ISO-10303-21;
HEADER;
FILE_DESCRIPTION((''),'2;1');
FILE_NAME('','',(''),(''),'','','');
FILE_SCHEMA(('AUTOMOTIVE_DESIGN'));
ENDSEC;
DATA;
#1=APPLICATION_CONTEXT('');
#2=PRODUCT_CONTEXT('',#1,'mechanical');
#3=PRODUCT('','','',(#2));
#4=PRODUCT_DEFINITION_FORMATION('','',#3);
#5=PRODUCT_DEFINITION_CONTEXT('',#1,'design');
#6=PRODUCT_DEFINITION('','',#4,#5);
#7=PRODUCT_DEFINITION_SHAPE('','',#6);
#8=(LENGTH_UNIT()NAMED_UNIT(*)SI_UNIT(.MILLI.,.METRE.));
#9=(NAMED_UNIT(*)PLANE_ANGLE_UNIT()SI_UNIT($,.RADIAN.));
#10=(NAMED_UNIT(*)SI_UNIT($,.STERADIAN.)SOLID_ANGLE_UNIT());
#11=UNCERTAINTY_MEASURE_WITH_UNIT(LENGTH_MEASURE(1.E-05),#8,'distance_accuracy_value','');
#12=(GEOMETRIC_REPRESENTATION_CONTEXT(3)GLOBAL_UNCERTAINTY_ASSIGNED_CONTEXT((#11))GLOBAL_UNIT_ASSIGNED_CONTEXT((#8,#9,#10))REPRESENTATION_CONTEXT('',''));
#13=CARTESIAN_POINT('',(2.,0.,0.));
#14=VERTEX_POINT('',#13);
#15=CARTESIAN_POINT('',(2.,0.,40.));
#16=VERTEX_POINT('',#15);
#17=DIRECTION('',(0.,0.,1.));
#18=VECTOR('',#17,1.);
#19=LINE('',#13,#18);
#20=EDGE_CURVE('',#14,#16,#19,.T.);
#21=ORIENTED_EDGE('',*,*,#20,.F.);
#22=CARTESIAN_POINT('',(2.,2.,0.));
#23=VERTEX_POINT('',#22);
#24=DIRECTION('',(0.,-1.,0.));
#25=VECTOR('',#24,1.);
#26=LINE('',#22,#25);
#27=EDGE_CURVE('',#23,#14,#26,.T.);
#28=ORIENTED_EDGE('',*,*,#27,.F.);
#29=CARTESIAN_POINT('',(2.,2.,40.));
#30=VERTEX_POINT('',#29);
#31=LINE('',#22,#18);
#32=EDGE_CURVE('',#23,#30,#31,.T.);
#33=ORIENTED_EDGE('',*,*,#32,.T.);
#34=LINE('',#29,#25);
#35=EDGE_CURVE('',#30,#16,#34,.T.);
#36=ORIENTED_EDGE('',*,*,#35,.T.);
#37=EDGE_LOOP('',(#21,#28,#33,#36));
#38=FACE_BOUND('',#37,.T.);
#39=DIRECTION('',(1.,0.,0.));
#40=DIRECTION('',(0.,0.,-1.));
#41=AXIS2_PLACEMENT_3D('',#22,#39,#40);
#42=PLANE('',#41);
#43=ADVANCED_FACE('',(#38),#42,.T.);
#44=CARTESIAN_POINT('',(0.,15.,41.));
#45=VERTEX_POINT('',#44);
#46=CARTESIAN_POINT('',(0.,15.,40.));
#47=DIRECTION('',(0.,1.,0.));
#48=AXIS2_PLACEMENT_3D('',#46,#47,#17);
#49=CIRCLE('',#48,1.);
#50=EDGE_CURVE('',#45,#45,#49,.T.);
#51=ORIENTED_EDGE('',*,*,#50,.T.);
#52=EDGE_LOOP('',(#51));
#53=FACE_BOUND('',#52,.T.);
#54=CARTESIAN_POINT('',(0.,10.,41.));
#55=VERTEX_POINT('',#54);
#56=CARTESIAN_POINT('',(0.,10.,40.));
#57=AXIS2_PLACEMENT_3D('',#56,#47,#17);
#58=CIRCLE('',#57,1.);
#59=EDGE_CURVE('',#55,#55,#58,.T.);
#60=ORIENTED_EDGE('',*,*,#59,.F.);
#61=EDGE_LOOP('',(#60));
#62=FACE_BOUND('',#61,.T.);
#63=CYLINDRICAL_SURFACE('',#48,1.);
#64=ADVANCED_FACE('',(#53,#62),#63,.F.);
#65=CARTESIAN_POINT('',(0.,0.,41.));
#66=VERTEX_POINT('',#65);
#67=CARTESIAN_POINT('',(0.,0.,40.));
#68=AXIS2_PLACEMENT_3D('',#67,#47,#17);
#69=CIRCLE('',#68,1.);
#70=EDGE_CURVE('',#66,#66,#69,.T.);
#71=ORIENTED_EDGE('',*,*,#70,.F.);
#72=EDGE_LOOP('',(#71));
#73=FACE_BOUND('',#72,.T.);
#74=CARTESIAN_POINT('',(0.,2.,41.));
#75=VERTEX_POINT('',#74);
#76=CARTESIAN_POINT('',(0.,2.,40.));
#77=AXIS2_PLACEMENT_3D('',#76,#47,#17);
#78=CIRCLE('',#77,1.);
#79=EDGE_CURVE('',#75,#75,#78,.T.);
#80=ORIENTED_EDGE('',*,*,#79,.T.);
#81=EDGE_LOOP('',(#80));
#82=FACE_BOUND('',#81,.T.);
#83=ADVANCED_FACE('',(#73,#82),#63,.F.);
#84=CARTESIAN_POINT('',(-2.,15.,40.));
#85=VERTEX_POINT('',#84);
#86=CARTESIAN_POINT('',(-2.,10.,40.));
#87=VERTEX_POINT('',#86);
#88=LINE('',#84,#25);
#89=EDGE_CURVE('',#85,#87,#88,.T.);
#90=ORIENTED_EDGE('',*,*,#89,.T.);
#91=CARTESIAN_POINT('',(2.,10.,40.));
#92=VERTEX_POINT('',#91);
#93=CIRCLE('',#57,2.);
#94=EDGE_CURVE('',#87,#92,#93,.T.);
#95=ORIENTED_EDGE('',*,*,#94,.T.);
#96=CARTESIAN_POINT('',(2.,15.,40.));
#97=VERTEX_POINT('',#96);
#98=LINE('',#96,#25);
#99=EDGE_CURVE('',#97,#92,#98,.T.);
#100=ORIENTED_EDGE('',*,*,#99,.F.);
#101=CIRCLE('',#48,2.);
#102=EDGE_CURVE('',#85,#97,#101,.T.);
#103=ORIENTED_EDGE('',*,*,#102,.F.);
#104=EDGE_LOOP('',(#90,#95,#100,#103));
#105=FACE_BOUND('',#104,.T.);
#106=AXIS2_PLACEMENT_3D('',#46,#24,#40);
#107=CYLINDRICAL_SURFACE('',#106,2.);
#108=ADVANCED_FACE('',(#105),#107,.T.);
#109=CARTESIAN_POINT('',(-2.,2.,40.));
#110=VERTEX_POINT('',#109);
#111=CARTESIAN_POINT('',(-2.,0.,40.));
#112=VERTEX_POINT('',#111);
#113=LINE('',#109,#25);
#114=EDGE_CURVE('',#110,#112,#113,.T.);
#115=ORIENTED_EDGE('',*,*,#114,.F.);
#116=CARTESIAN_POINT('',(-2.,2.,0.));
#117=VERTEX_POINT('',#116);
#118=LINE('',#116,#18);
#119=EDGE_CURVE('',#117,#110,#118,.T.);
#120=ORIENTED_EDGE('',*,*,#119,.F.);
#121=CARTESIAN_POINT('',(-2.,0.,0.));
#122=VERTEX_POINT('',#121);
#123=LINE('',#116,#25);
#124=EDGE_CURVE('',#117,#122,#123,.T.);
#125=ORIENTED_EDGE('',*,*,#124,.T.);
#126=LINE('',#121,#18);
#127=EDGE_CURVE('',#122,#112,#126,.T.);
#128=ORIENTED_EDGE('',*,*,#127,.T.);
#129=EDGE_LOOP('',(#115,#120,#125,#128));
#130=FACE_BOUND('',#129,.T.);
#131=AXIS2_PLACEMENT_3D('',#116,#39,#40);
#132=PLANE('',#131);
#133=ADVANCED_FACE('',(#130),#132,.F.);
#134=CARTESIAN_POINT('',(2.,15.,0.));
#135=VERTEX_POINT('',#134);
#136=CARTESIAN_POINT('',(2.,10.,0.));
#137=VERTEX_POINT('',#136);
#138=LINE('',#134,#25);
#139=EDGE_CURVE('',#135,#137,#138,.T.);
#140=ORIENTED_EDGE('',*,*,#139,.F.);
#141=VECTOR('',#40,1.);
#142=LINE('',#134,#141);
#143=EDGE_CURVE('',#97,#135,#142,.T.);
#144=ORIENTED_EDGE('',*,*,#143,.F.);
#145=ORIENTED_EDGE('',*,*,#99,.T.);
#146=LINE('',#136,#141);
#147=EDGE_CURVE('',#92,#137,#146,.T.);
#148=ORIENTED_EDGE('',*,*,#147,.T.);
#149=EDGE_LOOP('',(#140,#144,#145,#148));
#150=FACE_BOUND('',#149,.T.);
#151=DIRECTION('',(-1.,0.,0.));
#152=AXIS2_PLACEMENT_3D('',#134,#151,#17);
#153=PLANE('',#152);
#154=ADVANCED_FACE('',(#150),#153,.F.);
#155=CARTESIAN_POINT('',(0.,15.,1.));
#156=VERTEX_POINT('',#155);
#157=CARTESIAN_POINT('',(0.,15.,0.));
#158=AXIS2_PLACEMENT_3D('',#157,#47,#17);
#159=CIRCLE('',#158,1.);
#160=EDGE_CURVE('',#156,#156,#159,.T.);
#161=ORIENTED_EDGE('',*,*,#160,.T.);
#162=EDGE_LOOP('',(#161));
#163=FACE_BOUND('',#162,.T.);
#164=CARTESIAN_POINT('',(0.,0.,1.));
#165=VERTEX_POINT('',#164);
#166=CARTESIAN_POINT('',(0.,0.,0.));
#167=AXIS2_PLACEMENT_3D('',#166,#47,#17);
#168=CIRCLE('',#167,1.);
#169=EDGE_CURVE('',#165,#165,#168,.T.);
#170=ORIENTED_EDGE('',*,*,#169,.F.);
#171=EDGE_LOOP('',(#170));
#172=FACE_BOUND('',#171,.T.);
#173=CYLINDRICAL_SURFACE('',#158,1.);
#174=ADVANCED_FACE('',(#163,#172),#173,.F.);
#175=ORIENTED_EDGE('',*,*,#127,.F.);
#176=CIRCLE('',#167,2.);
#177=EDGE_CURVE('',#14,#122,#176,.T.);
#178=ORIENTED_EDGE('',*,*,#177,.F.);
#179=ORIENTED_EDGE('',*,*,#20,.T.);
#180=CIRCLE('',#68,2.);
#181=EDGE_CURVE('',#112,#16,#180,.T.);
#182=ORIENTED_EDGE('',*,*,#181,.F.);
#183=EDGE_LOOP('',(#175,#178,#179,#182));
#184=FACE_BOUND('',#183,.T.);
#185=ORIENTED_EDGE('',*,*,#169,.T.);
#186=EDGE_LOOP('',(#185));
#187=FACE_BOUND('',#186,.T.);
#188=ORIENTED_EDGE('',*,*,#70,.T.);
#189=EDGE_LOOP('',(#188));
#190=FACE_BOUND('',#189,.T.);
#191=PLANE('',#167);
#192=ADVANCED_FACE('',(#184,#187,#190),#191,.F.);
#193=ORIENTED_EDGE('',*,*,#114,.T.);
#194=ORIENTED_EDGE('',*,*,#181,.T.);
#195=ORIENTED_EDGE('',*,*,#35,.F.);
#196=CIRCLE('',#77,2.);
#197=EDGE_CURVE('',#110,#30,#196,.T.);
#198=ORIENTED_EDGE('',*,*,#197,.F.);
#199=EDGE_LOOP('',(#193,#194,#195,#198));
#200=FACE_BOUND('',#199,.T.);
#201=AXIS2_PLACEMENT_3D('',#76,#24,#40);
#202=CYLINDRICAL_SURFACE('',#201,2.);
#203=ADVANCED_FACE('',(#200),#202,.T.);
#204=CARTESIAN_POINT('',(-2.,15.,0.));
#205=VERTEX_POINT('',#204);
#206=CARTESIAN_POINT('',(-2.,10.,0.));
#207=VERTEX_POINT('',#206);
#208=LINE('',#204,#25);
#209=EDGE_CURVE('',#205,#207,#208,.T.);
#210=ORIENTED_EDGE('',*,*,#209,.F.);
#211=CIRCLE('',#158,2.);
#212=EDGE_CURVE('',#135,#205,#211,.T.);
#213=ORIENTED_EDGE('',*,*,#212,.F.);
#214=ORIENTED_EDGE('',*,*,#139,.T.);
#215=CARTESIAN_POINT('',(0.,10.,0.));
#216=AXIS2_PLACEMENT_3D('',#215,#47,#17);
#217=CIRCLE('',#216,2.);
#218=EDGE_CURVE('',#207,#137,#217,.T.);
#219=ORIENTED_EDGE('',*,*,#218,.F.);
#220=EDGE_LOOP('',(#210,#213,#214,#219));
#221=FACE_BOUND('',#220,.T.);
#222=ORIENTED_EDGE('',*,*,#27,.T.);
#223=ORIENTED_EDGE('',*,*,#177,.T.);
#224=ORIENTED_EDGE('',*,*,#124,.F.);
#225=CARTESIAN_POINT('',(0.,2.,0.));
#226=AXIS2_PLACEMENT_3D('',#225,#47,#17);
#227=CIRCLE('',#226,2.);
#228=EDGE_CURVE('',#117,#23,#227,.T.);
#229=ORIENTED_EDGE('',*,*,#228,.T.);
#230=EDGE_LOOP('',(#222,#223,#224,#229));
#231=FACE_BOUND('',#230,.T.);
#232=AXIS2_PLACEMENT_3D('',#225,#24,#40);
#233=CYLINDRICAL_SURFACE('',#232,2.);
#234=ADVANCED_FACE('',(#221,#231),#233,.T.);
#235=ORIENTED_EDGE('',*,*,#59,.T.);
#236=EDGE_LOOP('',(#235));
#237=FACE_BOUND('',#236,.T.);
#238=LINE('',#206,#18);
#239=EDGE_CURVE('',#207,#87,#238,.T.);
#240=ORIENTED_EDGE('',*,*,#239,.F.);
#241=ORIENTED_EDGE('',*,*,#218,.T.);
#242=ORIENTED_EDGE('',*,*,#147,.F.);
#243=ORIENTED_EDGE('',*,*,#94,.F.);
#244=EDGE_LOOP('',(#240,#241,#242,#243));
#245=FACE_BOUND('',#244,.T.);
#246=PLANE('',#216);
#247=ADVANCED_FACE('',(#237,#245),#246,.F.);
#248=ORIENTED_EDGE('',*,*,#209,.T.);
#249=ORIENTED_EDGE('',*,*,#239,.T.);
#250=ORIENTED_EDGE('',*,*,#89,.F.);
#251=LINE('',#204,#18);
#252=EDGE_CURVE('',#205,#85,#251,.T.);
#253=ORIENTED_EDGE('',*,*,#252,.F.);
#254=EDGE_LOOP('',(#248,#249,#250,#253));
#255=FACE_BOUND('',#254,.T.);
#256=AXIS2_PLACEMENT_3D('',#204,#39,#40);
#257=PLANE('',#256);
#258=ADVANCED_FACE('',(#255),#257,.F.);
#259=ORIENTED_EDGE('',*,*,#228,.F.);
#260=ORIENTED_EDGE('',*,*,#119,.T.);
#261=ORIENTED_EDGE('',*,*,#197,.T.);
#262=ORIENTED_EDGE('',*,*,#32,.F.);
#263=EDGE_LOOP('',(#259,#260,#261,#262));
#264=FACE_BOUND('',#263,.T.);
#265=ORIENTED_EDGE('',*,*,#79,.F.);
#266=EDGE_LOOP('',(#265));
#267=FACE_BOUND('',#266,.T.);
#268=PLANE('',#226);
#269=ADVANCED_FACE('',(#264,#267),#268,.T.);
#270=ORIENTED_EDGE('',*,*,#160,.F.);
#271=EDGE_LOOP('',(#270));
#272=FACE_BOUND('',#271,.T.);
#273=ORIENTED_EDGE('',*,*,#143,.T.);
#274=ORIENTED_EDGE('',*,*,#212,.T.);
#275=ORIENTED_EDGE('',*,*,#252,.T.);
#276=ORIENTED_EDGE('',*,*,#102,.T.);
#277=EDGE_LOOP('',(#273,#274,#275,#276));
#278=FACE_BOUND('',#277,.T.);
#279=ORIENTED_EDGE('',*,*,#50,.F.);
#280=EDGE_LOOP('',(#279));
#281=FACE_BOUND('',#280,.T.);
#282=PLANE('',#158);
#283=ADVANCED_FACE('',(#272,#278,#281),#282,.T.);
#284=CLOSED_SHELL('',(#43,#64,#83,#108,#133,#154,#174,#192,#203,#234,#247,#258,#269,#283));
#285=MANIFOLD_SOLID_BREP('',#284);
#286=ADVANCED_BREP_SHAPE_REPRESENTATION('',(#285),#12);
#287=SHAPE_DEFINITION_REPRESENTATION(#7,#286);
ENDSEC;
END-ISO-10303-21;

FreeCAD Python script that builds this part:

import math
import FreeCAD as App
import Part
import Sketcher
Q = App.Units.Quantity

doc = App.newDocument("Part")
body = doc.addObject("PartDesign::Body", "Body")

sketch1 = body.newObject("Sketcher::SketchObject", "Sketch")
sketch1.AttachmentSupport = (doc.getObject("XZ_Plane"), [""])
sketch1.MapMode = "FlatFace"
sketch1.addGeometry([
    Part.LineSegment(App.Vector(2, 40, 0), App.Vector(2, 0, 0)),
    Part.ArcOfCircle(Part.Circle(App.Vector(0, 0, 0), App.Vector(0, 0, 1), 2), math.radians(180), math.radians(360)),
    Part.LineSegment(App.Vector(-2, 0, 0), App.Vector(-2, 40, 0)),
    Part.ArcOfCircle(Part.Circle(App.Vector(0, 40, 0), App.Vector(0, 0, 1), 2), math.radians(0), math.radians(180)),
], False)
sketch1.addConstraint([
    Sketcher.Constraint("Tangent", 0, 2, 1, 2),
    Sketcher.Constraint("Tangent", 1, 1, 2, 1),
    Sketcher.Constraint("Tangent", 2, 2, 3, 2),
    Sketcher.Constraint("Tangent", 3, 1, 0, 1),
    Sketcher.Constraint("Vertical", 0),
    Sketcher.Constraint("Vertical", 2),
    Sketcher.Constraint("Coincident", 1, 3, -1, 1),
    Sketcher.Constraint("Radius", 1, Q("2 mm")),
    Sketcher.Constraint("DistanceY", 0, 2, 0, 1, Q("40 mm")),
])
pad1 = body.newObject("PartDesign::Pad", "Pad")
pad1.Profile = sketch1
pad1.Length = 2
pad1.Reversed = True

sketch2 = body.newObject("Sketcher::SketchObject", "Sketch001")
sketch2.AttachmentSupport = (doc.getObject("XZ_Plane"), [""])
sketch2.MapMode = "FlatFace"
sketch2.AttachmentOffset = App.Placement(App.Vector(0, 0, -2), App.Rotation())
sketch2.addGeometry(Part.Circle(App.Vector(0, 0, 0), App.Vector(0, 0, 1), 2), False)
sketch2.addConstraint([
    Sketcher.Constraint("Coincident", 0, 3, -1, 1),
    Sketcher.Constraint("Diameter", 0, Q("4 mm")),
])
pad2 = body.newObject("PartDesign::Pad", "Pad001")
pad2.Profile = sketch2
pad2.Length = 12
pad2.Reversed = True

sketch3 = body.newObject("Sketcher::SketchObject", "Sketch002")
sketch3.AttachmentSupport = (doc.getObject("XZ_Plane"), [""])
sketch3.MapMode = "FlatFace"
sketch3.AttachmentOffset = App.Placement(App.Vector(0, 0, -10), App.Rotation())
sketch3.addGeometry([
    Part.LineSegment(App.Vector(2, 40, 0), App.Vector(2, 0, 0)),
    Part.ArcOfCircle(Part.Circle(App.Vector(0, 0, 0), App.Vector(0, 0, 1), 2), math.radians(180), math.radians(360)),
    Part.LineSegment(App.Vector(-2, 0, 0), App.Vector(-2, 40, 0)),
    Part.ArcOfCircle(Part.Circle(App.Vector(0, 40, 0), App.Vector(0, 0, 1), 2), math.radians(0), math.radians(180)),
], False)
sketch3.addConstraint([
    Sketcher.Constraint("Tangent", 0, 2, 1, 2),
    Sketcher.Constraint("Tangent", 1, 1, 2, 1),
    Sketcher.Constraint("Tangent", 2, 2, 3, 2),
    Sketcher.Constraint("Tangent", 3, 1, 0, 1),
    Sketcher.Constraint("Vertical", 0),
    Sketcher.Constraint("Vertical", 2),
    Sketcher.Constraint("Coincident", 1, 3, -1, 1),
    Sketcher.Constraint("Radius", 1, Q("2 mm")),
    Sketcher.Constraint("DistanceY", 0, 2, 0, 1, Q("40 mm")),
])
pad3 = body.newObject("PartDesign::Pad", "Pad002")
pad3.Profile = sketch3
pad3.Length = 5
pad3.Reversed = True

sketch4 = body.newObject("Sketcher::SketchObject", "Sketch003")
sketch4.AttachmentSupport = (doc.getObject("XZ_Plane"), [""])
sketch4.MapMode = "FlatFace"
sketch4.AttachmentOffset = App.Placement(App.Vector(0, 0, -15), App.Rotation())
sketch4.addGeometry([
    Part.Circle(App.Vector(0, 0, 0), App.Vector(0, 0, 1), 1),
    Part.Circle(App.Vector(0, 40, 0), App.Vector(0, 0, 1), 1),
], False)
sketch4.addConstraint([
    Sketcher.Constraint("Coincident", 0, 3, -1, 1),
    Sketcher.Constraint("Equal", 0, 1),
    Sketcher.Constraint("PointOnObject", 1, 3, -2),
    Sketcher.Constraint("Diameter", 0, Q("2 mm")),
    Sketcher.Constraint("DistanceY", -1, 1, 1, 3, Q("40 mm")),
])
doc.recompute()
hole = body.newObject("PartDesign::Hole", "Hole")
hole.Profile = sketch4
hole.ThreadType = "None"
hole.Diameter = 2
hole.DepthType = "ThroughAll"
hole.Reversed = True

doc.recompute()
